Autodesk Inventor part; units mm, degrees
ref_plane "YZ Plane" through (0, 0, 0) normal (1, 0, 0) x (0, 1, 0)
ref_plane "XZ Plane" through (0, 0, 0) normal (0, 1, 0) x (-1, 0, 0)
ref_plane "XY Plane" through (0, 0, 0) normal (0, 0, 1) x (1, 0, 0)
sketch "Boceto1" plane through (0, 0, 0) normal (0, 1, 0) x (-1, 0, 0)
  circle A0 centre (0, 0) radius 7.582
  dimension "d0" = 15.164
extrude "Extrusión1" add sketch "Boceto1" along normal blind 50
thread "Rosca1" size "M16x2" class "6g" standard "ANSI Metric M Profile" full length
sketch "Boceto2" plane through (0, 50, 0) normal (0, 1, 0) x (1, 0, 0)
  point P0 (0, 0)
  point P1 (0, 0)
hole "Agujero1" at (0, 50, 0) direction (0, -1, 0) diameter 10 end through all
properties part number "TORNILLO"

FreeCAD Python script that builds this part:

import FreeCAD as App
import Part
import Sketcher
Q = App.Units.Quantity

doc = App.newDocument("Part")
body = doc.addObject("PartDesign::Body", "Body")

# Sketch on XZ plane
sketch1 = doc.addObject("Sketcher::SketchObject", "Sketch")
body.addObject(sketch1)
sketch1.AttachmentSupport = (doc.XZ_Plane, [""])
sketch1.MapMode = "FlatFace"
sketch1.addGeometry(Part.Circle(App.Vector(0, 0, 0), App.Vector(0, 0, 1), 8), False)
sketch1.addConstraint(Sketcher.Constraint("Coincident", 0, 3, -1, 1))
sketch1.addConstraint(Sketcher.Constraint("Diameter", 0, Q("0.597 in")))
pad1 = doc.addObject("PartDesign::Pad", "Pad")
body.addObject(pad1)
pad1.Profile = sketch1
pad1.Length = Q("1.9685039 in")
pad1.Reversed = True

# Sketch on XZ plane
sketch2 = doc.addObject("Sketcher::SketchObject", "Sketch001")
body.addObject(sketch2)
sketch2.AttachmentSupport = (doc.XZ_Plane, [""])
sketch2.MapMode = "FlatFace"
sketch2.AttachmentOffset = App.Placement(App.Vector(0, 0, -1.9685039 * 25.4), App.Rotation())
sketch2.addGeometry(Part.Circle(App.Vector(0, 0, 0), App.Vector(0, 0, 1), 5), False)
sketch2.addConstraint(Sketcher.Constraint("Coincident", 0, 3, -1, 1))
sketch2.addConstraint(Sketcher.Constraint("Diameter", 0, Q("0.3937 in")))
doc.recompute()
hole = doc.addObject("PartDesign::Hole", "Hole")
body.addObject(hole)
hole.Profile = sketch2
hole.ThreadType = "None"
hole.Diameter = Q("0.3937008 in")
hole.DepthType = "ThroughAll"
hole.Reversed = True

doc.recompute()
